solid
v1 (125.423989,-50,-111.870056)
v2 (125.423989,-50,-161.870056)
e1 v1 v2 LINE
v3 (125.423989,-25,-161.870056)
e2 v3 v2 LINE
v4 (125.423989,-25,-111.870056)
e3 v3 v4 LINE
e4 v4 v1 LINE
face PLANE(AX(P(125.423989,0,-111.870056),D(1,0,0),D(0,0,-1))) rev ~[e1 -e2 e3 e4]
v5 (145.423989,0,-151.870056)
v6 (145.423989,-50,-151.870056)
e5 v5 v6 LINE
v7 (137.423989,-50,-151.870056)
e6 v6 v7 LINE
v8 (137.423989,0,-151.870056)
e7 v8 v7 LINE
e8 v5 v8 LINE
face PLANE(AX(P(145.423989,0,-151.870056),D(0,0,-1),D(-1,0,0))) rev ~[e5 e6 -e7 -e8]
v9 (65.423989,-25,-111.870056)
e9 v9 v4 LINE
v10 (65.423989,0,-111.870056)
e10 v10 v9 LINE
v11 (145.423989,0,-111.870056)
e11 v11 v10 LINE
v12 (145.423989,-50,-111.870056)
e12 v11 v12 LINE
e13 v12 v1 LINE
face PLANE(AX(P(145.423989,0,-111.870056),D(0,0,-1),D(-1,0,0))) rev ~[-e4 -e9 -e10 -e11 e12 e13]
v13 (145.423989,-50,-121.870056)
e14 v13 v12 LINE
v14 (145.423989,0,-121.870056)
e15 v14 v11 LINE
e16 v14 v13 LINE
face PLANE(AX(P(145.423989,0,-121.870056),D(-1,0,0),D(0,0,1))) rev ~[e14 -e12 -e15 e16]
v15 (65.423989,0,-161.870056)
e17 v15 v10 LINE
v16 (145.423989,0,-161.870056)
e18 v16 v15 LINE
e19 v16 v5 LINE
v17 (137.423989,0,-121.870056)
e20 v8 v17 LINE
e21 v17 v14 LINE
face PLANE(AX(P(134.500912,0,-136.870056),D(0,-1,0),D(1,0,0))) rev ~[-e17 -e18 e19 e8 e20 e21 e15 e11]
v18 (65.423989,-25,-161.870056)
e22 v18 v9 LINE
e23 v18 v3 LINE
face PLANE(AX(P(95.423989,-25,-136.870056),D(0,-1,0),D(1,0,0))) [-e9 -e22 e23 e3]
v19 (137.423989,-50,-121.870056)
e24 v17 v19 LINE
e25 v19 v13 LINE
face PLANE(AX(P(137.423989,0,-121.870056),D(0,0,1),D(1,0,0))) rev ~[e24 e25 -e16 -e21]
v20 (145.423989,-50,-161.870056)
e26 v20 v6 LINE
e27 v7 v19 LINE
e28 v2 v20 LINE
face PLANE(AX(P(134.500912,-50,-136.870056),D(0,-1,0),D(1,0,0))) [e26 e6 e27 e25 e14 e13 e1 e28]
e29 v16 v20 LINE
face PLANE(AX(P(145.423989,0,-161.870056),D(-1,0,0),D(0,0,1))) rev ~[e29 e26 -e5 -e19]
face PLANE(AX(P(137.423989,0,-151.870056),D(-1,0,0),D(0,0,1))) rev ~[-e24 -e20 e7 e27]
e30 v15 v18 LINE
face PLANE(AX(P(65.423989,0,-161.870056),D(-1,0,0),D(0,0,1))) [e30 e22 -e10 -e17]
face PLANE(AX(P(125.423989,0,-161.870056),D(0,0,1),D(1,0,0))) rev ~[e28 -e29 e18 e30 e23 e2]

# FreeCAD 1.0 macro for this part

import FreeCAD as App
import Part
import Sketcher
from FreeCAD import Vector
Q = App.Units.Quantity

doc = App.newDocument("Part")
body = doc.addObject("PartDesign::Body", "Body")

sketch1 = doc.addObject("Sketcher::SketchObject", "Sketch")
body.addObject(sketch1)
sketch1.AttachmentSupport = (doc.XZ_Plane, [""])
sketch1.MapMode = "FlatFace"
sketch1.addGeometry([
    Part.LineSegment(Vector(65.423989, -111.870056, 0), Vector(65.423989, -161.870056, 0)),
    Part.LineSegment(Vector(65.423989, -161.870056, 0), Vector(125.423989, -161.870056, 0)),
    Part.LineSegment(Vector(125.423989, -161.870056, 0), Vector(125.423989, -111.870056, 0)),
    Part.LineSegment(Vector(125.423989, -111.870056, 0), Vector(65.423989, -111.870056, 0)),
], False)
sketch1.addConstraint([
    Sketcher.Constraint("Coincident", 0, 2, 1, 1),
    Sketcher.Constraint("Coincident", 1, 2, 2, 1),
    Sketcher.Constraint("Coincident", 2, 2, 3, 1),
    Sketcher.Constraint("Coincident", 3, 2, 0, 1),
    Sketcher.Constraint("Vertical", 0),
    Sketcher.Constraint("Horizontal", 1),
    Sketcher.Constraint("Vertical", 2),
    Sketcher.Constraint("Horizontal", 3),
    Sketcher.Constraint("DistanceX", 1, 1, 1, 2, Q("60 mm")),
    Sketcher.Constraint("DistanceY", 0, 2, 0, 1, Q("50 mm")),
    Sketcher.Constraint("DistanceX", -1, 1, 0, 2, Q("65.423989 mm")),
    Sketcher.Constraint("DistanceY", 0, 2, -1, 1, Q("161.870056 mm")),
])
pad1 = doc.addObject("PartDesign::Pad", "Pad")
body.addObject(pad1)
pad1.Profile = sketch1
pad1.Length = 25

sketch2 = doc.addObject("Sketcher::SketchObject", "Sketch001")
body.addObject(sketch2)
sketch2.AttachmentSupport = (doc.XZ_Plane, [""])
sketch2.MapMode = "FlatFace"
sketch2.addGeometry([
    Part.LineSegment(Vector(145.423989, -111.870056, 0), Vector(125.423989, -111.870056, 0)),
    Part.LineSegment(Vector(125.423989, -111.870056, 0), Vector(125.423989, -161.870056, 0)),
    Part.LineSegment(Vector(125.423989, -161.870056, 0), Vector(145.423989, -161.870056, 0)),
    Part.LineSegment(Vector(145.423989, -161.870056, 0), Vector(145.423989, -151.870056, 0)),
    Part.LineSegment(Vector(145.423989, -151.870056, 0), Vector(137.423989, -151.870056, 0)),
    Part.LineSegment(Vector(137.423989, -151.870056, 0), Vector(137.423989, -121.870056, 0)),
    Part.LineSegment(Vector(137.423989, -121.870056, 0), Vector(145.423989, -121.870056, 0)),
    Part.LineSegment(Vector(145.423989, -121.870056, 0), Vector(145.423989, -111.870056, 0)),
], False)
sketch2.addConstraint([
    Sketcher.Constraint("Coincident", 0, 2, 1, 1),
    Sketcher.Constraint("Coincident", 1, 2, 2, 1),
    Sketcher.Constraint("Coincident", 2, 2, 3, 1),
    Sketcher.Constraint("Coincident", 3, 2, 4, 1),
    Sketcher.Constraint("Coincident", 4, 2, 5, 1),
    Sketcher.Constraint("Coincident", 5, 2, 6, 1),
    Sketcher.Constraint("Coincident", 6, 2, 7, 1),
    Sketcher.Constraint("Coincident", 7, 2, 0, 1),
    Sketcher.Constraint("Horizontal", 0),
    Sketcher.Constraint("Vertical", 1),
    Sketcher.Constraint("Horizontal", 2),
    Sketcher.Constraint("Vertical", 3),
    Sketcher.Constraint("Horizontal", 4),
    Sketcher.Constraint("Vertical", 5),
    Sketcher.Constraint("Horizontal", 6),
    Sketcher.Constraint("Vertical", 7),
    Sketcher.Constraint("Vertical", 3, 2, 6, 2),
    Sketcher.Constraint("Equal", 3, 7),
    Sketcher.Constraint("DistanceX", 0, 2, 0, 1, Q("20 mm")),
    Sketcher.Constraint("DistanceX", 4, 2, 4, 1, Q("8 mm")),
    Sketcher.Constraint("DistanceY", 1, 2, 1, 1, Q("50 mm")),
    Sketcher.Constraint("DistanceY", 3, 1, 3, 2, Q("10 mm")),
    Sketcher.Constraint("DistanceX", -1, 1, 0, 2, Q("125.423989 mm")),
    Sketcher.Constraint("DistanceY", 0, 2, -1, 1, Q("111.870056 mm")),
])
pad2 = doc.addObject("PartDesign::Pad", "Pad001")
body.addObject(pad2)
pad2.Profile = sketch2
pad2.Length = 50

doc.recompute()
